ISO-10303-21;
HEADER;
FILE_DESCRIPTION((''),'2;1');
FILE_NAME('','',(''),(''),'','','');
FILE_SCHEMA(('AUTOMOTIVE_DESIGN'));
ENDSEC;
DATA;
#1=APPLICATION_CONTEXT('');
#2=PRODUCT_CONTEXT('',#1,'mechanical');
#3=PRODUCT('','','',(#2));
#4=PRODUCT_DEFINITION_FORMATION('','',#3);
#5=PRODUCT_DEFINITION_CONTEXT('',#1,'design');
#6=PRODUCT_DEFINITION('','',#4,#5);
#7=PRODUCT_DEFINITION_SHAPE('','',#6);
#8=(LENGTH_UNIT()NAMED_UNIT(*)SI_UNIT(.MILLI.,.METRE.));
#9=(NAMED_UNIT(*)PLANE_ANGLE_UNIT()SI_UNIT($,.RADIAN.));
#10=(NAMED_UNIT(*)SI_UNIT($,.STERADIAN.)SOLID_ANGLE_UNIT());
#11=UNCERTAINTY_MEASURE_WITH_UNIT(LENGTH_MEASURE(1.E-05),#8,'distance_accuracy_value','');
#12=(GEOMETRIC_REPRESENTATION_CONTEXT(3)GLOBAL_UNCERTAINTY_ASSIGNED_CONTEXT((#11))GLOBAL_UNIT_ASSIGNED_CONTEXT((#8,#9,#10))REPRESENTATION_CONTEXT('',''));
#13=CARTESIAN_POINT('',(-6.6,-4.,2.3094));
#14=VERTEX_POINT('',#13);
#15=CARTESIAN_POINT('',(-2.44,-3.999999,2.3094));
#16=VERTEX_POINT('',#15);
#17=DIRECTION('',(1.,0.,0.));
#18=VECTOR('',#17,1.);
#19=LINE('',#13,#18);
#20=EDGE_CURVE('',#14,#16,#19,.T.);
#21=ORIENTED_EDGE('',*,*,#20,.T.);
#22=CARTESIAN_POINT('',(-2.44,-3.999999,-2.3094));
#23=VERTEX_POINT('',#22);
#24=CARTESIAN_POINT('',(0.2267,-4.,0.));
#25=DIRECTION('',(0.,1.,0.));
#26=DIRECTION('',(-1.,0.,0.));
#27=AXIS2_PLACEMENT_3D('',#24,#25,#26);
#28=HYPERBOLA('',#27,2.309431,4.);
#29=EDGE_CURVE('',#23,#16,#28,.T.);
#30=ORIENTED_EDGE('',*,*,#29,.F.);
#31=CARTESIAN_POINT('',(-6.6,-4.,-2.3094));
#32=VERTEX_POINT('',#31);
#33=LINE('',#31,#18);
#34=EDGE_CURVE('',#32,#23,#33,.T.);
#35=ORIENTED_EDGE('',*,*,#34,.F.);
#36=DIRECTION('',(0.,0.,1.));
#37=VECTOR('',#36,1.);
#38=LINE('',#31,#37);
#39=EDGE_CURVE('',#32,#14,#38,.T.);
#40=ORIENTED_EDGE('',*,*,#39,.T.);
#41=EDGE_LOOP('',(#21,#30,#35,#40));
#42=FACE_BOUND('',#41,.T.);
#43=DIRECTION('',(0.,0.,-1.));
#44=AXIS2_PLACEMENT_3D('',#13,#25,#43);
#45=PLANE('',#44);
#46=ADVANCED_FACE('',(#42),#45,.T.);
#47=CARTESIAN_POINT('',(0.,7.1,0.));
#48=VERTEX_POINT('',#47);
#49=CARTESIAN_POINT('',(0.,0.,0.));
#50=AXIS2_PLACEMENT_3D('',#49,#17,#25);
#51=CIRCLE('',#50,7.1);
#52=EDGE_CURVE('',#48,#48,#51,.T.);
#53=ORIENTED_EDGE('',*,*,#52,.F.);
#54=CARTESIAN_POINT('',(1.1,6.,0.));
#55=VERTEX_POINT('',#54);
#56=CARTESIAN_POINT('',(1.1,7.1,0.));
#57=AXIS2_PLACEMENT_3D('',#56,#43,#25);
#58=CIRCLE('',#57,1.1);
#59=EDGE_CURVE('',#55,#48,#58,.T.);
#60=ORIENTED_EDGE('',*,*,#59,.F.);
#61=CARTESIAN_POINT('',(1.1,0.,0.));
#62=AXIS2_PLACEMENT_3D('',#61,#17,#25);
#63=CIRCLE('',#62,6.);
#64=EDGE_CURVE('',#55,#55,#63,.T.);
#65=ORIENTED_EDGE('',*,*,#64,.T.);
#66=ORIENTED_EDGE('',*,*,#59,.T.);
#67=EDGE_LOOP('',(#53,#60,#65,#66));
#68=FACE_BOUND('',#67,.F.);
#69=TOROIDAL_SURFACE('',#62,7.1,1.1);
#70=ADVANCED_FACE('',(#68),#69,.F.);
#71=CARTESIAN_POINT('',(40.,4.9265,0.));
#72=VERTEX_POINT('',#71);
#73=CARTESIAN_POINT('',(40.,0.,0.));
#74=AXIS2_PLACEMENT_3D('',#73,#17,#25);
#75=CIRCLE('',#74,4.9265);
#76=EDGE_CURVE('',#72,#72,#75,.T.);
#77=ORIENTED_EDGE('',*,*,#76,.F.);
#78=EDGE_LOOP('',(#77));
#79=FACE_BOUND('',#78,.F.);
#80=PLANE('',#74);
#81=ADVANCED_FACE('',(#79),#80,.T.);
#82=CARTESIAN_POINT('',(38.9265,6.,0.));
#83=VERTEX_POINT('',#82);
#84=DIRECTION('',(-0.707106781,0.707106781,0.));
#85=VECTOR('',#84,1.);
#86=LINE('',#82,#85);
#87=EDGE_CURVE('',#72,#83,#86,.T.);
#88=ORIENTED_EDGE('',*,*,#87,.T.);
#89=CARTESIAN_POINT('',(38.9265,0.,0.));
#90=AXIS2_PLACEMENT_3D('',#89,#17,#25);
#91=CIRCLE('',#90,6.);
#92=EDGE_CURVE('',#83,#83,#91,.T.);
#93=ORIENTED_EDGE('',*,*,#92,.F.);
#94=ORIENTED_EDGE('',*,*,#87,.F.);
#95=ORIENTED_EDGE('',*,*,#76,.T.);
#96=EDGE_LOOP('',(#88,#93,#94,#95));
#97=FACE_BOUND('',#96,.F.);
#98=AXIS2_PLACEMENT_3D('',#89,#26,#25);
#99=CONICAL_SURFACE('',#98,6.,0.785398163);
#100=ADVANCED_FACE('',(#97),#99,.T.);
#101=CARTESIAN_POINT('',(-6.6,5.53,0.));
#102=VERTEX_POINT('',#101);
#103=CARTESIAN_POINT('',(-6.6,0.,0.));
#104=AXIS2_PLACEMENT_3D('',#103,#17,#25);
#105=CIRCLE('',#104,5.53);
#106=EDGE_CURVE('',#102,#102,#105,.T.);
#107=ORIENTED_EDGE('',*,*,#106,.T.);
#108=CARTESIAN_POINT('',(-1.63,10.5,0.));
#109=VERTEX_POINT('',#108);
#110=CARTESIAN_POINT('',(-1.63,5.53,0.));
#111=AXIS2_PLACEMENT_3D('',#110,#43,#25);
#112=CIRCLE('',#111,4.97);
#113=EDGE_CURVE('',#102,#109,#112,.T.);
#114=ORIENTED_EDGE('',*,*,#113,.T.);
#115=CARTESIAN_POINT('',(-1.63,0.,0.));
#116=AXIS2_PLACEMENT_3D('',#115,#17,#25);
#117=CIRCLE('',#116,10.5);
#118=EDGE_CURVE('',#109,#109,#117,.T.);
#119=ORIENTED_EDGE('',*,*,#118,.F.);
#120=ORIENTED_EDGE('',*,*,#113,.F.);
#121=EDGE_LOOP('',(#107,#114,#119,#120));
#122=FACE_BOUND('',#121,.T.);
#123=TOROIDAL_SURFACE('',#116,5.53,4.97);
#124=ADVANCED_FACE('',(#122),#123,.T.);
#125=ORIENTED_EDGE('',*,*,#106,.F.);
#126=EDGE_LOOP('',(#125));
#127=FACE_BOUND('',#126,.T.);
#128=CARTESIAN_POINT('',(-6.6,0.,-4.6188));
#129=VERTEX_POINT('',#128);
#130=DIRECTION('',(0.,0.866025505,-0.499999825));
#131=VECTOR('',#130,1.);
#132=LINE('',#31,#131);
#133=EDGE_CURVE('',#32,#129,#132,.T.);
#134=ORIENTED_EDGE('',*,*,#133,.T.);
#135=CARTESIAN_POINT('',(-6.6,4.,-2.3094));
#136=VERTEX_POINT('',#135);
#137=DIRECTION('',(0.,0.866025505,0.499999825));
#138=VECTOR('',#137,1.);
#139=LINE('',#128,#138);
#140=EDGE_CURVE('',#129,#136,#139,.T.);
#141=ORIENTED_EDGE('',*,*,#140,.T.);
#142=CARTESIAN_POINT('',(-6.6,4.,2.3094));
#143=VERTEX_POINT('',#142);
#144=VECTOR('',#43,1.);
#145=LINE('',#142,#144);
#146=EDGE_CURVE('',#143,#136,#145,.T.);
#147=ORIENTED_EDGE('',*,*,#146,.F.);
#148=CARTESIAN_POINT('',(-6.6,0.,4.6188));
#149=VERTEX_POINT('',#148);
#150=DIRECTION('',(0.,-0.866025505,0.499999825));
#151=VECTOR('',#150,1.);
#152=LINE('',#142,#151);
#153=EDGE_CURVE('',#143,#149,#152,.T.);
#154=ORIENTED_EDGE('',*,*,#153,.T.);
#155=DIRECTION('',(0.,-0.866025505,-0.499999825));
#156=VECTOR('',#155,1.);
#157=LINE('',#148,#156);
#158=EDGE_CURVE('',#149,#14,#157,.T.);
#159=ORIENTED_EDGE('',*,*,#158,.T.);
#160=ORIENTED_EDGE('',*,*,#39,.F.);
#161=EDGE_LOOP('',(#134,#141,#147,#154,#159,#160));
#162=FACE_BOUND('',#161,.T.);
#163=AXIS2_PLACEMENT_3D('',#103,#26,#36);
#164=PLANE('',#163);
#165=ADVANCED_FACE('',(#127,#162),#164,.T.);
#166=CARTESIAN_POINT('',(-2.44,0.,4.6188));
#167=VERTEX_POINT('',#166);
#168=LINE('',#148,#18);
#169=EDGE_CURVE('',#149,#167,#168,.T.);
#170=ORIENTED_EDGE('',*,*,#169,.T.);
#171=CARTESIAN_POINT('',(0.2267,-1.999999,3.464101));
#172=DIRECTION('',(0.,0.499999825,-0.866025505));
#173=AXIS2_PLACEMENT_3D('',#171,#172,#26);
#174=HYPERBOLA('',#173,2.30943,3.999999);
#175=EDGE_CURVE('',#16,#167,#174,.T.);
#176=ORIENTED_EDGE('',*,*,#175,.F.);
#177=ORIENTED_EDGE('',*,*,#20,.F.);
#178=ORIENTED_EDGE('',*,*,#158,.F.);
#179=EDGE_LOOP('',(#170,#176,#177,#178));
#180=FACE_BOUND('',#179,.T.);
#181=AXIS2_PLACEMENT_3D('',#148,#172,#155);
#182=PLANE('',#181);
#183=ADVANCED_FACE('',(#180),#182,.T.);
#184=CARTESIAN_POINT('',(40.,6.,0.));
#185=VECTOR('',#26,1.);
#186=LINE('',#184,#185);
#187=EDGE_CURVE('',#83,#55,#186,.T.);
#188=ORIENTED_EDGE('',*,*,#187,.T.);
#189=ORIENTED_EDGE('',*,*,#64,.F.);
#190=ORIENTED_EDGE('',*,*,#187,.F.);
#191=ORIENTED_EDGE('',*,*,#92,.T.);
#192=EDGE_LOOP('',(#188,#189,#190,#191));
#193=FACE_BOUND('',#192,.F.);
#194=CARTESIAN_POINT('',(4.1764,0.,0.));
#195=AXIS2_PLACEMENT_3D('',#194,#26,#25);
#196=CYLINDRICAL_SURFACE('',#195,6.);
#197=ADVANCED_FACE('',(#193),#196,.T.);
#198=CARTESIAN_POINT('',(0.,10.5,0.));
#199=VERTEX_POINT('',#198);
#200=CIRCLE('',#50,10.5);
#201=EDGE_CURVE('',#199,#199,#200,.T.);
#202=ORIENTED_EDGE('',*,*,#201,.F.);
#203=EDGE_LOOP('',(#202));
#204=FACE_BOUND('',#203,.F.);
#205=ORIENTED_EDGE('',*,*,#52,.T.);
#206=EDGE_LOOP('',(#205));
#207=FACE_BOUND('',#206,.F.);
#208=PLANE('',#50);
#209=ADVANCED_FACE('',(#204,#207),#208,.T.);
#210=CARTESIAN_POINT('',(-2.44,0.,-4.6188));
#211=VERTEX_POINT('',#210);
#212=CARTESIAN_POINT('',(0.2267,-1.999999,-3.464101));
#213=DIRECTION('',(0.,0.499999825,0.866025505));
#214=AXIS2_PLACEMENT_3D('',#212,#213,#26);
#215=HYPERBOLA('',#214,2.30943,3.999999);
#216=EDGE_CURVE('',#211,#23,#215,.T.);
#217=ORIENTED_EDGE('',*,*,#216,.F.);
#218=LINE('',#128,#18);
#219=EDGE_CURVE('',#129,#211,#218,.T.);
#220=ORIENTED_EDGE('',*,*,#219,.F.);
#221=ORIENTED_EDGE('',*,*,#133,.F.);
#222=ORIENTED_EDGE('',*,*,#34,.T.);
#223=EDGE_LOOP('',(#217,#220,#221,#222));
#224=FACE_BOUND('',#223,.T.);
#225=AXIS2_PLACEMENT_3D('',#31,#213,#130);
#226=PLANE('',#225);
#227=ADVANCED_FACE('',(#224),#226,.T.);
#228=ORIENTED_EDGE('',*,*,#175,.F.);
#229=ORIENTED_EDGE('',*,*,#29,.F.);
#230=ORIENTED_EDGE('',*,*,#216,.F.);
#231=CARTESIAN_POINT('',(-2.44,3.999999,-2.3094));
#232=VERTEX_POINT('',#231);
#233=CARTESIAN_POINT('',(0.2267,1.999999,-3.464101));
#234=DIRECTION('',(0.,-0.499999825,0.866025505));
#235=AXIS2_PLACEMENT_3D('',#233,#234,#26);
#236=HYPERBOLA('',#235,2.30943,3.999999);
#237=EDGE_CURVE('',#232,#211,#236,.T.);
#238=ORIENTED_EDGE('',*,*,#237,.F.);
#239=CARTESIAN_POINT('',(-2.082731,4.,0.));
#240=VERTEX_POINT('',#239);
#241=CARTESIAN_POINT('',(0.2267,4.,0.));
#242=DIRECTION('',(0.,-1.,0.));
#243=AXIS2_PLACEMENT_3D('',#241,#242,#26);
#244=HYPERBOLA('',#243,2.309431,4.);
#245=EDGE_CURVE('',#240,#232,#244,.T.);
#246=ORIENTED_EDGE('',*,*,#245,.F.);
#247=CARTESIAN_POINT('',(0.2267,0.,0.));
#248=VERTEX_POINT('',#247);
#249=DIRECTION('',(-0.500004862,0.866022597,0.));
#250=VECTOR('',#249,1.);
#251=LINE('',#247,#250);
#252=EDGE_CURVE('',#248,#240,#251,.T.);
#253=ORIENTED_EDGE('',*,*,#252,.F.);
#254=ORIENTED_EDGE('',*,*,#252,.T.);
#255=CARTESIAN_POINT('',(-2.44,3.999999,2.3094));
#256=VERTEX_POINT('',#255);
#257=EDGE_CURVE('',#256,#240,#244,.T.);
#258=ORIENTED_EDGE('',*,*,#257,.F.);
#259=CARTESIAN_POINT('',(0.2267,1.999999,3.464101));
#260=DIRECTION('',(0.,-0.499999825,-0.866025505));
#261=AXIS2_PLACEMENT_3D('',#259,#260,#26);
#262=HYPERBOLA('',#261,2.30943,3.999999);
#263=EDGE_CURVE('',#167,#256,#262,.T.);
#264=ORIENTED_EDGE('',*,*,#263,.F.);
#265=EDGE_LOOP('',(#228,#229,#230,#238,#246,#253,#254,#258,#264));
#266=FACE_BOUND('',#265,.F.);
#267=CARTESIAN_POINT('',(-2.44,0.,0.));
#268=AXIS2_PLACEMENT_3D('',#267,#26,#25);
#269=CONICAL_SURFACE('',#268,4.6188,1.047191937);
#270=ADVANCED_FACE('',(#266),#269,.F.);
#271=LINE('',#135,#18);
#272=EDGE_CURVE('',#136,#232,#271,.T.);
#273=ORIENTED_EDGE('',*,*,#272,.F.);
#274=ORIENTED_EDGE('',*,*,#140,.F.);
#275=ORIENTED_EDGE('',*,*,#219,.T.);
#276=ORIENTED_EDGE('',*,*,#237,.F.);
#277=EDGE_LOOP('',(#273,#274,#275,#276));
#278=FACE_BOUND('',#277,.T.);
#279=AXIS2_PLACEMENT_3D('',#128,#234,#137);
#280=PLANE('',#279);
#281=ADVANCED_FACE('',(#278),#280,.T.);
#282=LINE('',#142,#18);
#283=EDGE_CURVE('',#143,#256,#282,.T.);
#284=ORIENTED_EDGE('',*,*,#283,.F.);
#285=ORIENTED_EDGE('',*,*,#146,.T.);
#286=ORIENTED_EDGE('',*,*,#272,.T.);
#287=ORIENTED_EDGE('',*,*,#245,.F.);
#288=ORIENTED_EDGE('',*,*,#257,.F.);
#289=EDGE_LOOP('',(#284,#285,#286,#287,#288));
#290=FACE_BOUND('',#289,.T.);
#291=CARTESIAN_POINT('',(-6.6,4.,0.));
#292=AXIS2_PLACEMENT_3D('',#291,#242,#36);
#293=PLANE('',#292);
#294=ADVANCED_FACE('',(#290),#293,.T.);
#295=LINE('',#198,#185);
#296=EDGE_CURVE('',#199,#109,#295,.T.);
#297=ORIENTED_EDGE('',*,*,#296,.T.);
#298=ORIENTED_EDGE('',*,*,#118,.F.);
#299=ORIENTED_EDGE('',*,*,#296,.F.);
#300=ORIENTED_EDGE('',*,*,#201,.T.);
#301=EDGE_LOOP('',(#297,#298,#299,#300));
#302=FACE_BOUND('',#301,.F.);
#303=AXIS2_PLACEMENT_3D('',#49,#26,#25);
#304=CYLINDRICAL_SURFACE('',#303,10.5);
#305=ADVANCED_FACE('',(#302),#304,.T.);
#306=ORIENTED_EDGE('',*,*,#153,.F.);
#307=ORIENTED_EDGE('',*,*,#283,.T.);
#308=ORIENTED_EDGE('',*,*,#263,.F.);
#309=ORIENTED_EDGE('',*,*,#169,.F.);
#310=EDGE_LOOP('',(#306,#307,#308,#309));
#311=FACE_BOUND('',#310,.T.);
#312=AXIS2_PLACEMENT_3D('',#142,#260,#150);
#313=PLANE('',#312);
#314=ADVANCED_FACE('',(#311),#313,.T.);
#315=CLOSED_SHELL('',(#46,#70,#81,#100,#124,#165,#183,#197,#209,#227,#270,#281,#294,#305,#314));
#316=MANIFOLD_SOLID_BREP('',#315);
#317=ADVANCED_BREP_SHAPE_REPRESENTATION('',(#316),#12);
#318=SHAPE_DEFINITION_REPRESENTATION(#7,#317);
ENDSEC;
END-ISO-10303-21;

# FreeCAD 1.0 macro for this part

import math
import FreeCAD as App
import Part
import Sketcher
from FreeCAD import Vector
Q = App.Units.Quantity


def edges_at(feature, points):
    """Names of the edges that pass closest to the given points."""
    edges = feature.Shape.Edges
    near = lambda p: min(range(len(edges)), key=lambda i: edges[i].distToShape(Part.Vertex(*p))[0])
    return sorted({f"Edge{near(p) + 1}" for p in points})

doc = App.newDocument("Part")
body = doc.addObject("PartDesign::Body", "Body")

# Sketch on XY plane
sketch1 = body.newObject("Sketcher::SketchObject", "Sketch")
sketch1.AttachmentSupport = (doc.getObject("XY_Plane"), [""])
sketch1.MapMode = "FlatFace"
sketch1.addGeometry(Part.LineSegment(Vector(0.2, 0, 0), Vector(40, 0, 0)), False)
sketch1.addGeometry(Part.LineSegment(Vector(40, 0, 0), Vector(40, 6, 0)), False)
sketch1.addGeometry(Part.LineSegment(Vector(40, 6, 0), Vector(0, 6, 0)), False)
sketch1.addGeometry(Part.LineSegment(Vector(0, 6, 0), Vector(0, 10.5, 0)), False)
sketch1.addGeometry(Part.LineSegment(Vector(0, 10.5, 0), Vector(-6.6, 10.5, 0)), False)
sketch1.addGeometry(Part.LineSegment(Vector(-6.6, 10.5, 0), Vector(-6.6, 4.6, 0)), False)
sketch1.addGeometry(Part.LineSegment(Vector(-6.6, 4.6, 0), Vector(-2.4, 4.6, 0)), False)
sketch1.addGeometry(Part.LineSegment(Vector(-2.4, 4.6, 0), Vector(0.2, 0, 0)), False)
sketch1.addConstraint(Sketcher.Constraint("Coincident", 0, 2, 1, 1))
sketch1.addConstraint(Sketcher.Constraint("Coincident", 1, 2, 2, 1))
sketch1.addConstraint(Sketcher.Constraint("Coincident", 2, 2, 3, 1))
sketch1.addConstraint(Sketcher.Constraint("Coincident", 3, 2, 4, 1))
sketch1.addConstraint(Sketcher.Constraint("Coincident", 4, 2, 5, 1))
sketch1.addConstraint(Sketcher.Constraint("Coincident", 5, 2, 6, 1))
sketch1.addConstraint(Sketcher.Constraint("Coincident", 6, 2, 7, 1))
sketch1.addConstraint(Sketcher.Constraint("Coincident", 7, 2, 0, 1))
sketch1.addConstraint(Sketcher.Constraint("Horizontal", 0))
sketch1.addConstraint(Sketcher.Constraint("Vertical", 1))
sketch1.addConstraint(Sketcher.Constraint("Horizontal", 2))
sketch1.addConstraint(Sketcher.Constraint("Vertical", 3))
sketch1.addConstraint(Sketcher.Constraint("Horizontal", 4))
sketch1.addConstraint(Sketcher.Constraint("Vertical", 5))
sketch1.addConstraint(Sketcher.Constraint("Horizontal", 6))
sketch1.addConstraint(Sketcher.Constraint("PointOnObject", 0, 2, -1))
sketch1.addConstraint(Sketcher.Constraint("PointOnObject", 2, 2, -2))
sketch1.addConstraint(Sketcher.Constraint("DistanceX", 2, 2, 2, 1, Q("40 mm")))
sketch1.addConstraint(Sketcher.Constraint("Angle", 7, Q("-59.9997 deg")))
sketch1.addConstraint(Sketcher.Constraint("DistanceX", 4, 2, 4, 1, Q("6.6 mm")))
sketch1.addConstraint(Sketcher.Constraint("DistanceX", 6, 1, 6, 2, Q("4.16 mm")))
sketch1.addConstraint(Sketcher.Constraint("DistanceY", 1, 1, 1, 2, Q("6 mm")))
sketch1.addConstraint(Sketcher.Constraint("DistanceY", 3, 1, 3, 2, Q("4.5 mm")))
sketch1.addConstraint(Sketcher.Constraint("DistanceX", 0, 1, 0, 2, Q("39.7733 mm")))
revolution = body.newObject("PartDesign::Revolution", "Revolution")
revolution.Profile = sketch1
revolution.ReferenceAxis = (sketch1, ["H_Axis"])
revolution.Angle = 360

# Sketch on YZ plane
sketch2 = body.newObject("Sketcher::SketchObject", "Sketch001")
sketch2.AttachmentSupport = (doc.getObject("YZ_Plane"), [""])
sketch2.MapMode = "FlatFace"
sketch2.AttachmentOffset = App.Placement(Vector(0, 0, -6.6), App.Rotation())
sketch2.addGeometry(Part.LineSegment(Vector(4, 2.3, 0), Vector(0, 4.6, 0)), False)
sketch2.addGeometry(Part.ArcOfCircle(Part.Circle(Vector(0, 0, 0), Vector(0, 0, 1), 4.6), math.radians(30), math.radians(90)), False)
sketch2.addGeometry(Part.ArcOfCircle(Part.Circle(Vector(0, 0, 0), Vector(0, 0, 1), 4.6), math.radians(90), math.radians(150)), False)
sketch2.addGeometry(Part.LineSegment(Vector(0, 4.6, 0), Vector(-4, 2.3, 0)), False)
sketch2.addGeometry(Part.ArcOfCircle(Part.Circle(Vector(0, 0, 0), Vector(0, 0, 1), 4.6), math.radians(-30), math.radians(30)), False)
sketch2.addGeometry(Part.LineSegment(Vector(4, 2.3, 0), Vector(4, -2.3, 0)), False)
sketch2.addGeometry(Part.LineSegment(Vector(-4, 2.3, 0), Vector(-4, -2.3, 0)), False)
sketch2.addGeometry(Part.ArcOfCircle(Part.Circle(Vector(0, 0, 0), Vector(0, 0, 1), 4.6), math.radians(150), math.radians(210)), False)
sketch2.addGeometry(Part.LineSegment(Vector(-4, -2.3, 0), Vector(0, -4.6, 0)), False)
sketch2.addGeometry(Part.ArcOfCircle(Part.Circle(Vector(0, 0, 0), Vector(0, 0, 1), 4.6), math.radians(-150), math.radians(-90)), False)
sketch2.addGeometry(Part.ArcOfCircle(Part.Circle(Vector(0, 0, 0), Vector(0, 0, 1), 4.6), math.radians(-90), math.radians(-30)), False)
sketch2.addGeometry(Part.LineSegment(Vector(0, -4.6, 0), Vector(4, -2.3, 0)), False)
sketch2.addConstraint(Sketcher.Constraint("Coincident", 0, 1, 1, 1))
sketch2.addConstraint(Sketcher.Constraint("Coincident", 1, 2, 0, 2))
sketch2.addConstraint(Sketcher.Constraint("Coincident", 2, 1, 3, 1))
sketch2.addConstraint(Sketcher.Constraint("Coincident", 3, 2, 2, 2))
sketch2.addConstraint(Sketcher.Constraint("Coincident", 4, 1, 5, 2))
sketch2.addConstraint(Sketcher.Constraint("Coincident", 5, 1, 4, 2))
sketch2.addConstraint(Sketcher.Constraint("Coincident", 6, 1, 7, 1))
sketch2.addConstraint(Sketcher.Constraint("Coincident", 7, 2, 6, 2))
sketch2.addConstraint(Sketcher.Constraint("Coincident", 8, 1, 9, 1))
sketch2.addConstraint(Sketcher.Constraint("Coincident", 9, 2, 8, 2))
sketch2.addConstraint(Sketcher.Constraint("Coincident", 10, 1, 11, 1))
sketch2.addConstraint(Sketcher.Constraint("Coincident", 11, 2, 10, 2))
sketch2.addConstraint(Sketcher.Constraint("Vertical", 5))
sketch2.addConstraint(Sketcher.Constraint("Vertical", 6))
sketch2.addConstraint(Sketcher.Constraint("Coincident", 1, 3, -1, 1))
sketch2.addConstraint(Sketcher.Constraint("Coincident", 2, 3, -1, 1))
sketch2.addConstraint(Sketcher.Constraint("Coincident", 4, 3, -1, 1))
sketch2.addConstraint(Sketcher.Constraint("Coincident", 7, 3, -1, 1))
sketch2.addConstraint(Sketcher.Constraint("Coincident", 9, 3, -1, 1))
sketch2.addConstraint(Sketcher.Constraint("Coincident", 10, 3, -1, 1))
sketch2.addConstraint(Sketcher.Constraint("Coincident", 2, 1, 1, 2))
sketch2.addConstraint(Sketcher.Constraint("Coincident", 5, 1, 0, 1))
sketch2.addConstraint(Sketcher.Constraint("Coincident", 6, 1, 3, 2))
sketch2.addConstraint(Sketcher.Constraint("Coincident", 8, 1, 7, 2))
sketch2.addConstraint(Sketcher.Constraint("Coincident", 10, 1, 9, 2))
sketch2.addConstraint(Sketcher.Constraint("PointOnObject", 1, 2, -2))
sketch2.addConstraint(Sketcher.Constraint("PointOnObject", 9, 2, -2))
sketch2.addConstraint(Sketcher.Constraint("Parallel", 0, 8))
sketch2.addConstraint(Sketcher.Constraint("Parallel", 3, 11))
sketch2.addConstraint(Sketcher.Constraint("Angle", 0, Q("150 deg")))
sketch2.addConstraint(Sketcher.Constraint("DistanceX", -1, 1, 0, 1, Q("4 mm")))
pad1 = body.newObject("PartDesign::Pad", "Pad")
pad1.Profile = sketch2
pad1.Type = "UpToFirst"
doc.recompute()

fillet = body.newObject("PartDesign::Fillet", "Fillet")
fillet.Base = (pad1, edges_at(pad1, [(-6.6, -10.5, 0)]))
fillet.Radius = 4.97
doc.recompute()

chamfer = body.newObject("PartDesign::Chamfer", "Chamfer")
chamfer.Base = (fillet, edges_at(fillet, [(40, -6, 0)]))
chamfer.ChamferType = "Two distances"
chamfer.Size = 1.0735
chamfer.Size2 = 1.0735
doc.recompute()

fillet2 = body.newObject("PartDesign::Fillet", "Fillet001")
fillet2.Base = (chamfer, edges_at(chamfer, [(0, -6, 0)]))
fillet2.Radius = 1.1

doc.recompute()
